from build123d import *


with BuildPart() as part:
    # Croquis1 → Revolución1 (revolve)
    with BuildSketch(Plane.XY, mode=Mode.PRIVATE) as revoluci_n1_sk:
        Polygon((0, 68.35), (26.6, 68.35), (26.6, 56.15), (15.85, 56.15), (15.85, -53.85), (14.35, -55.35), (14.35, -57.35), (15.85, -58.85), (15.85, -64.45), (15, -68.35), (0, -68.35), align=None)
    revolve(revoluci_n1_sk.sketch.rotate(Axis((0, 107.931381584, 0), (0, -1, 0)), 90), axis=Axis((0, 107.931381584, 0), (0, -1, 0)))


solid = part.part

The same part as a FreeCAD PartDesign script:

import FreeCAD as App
import Part
import Sketcher
Q = App.Units.Quantity


def add_polygon(sketch, points):
    """Adds a closed chain of lines whose ends are joined by coincident constraints."""
    first, n = sketch.GeometryCount, len(points)
    for a, b in zip(points, points[1:] + points[:1]):
        sketch.addGeometry(Part.LineSegment(App.Vector(*a, 0), App.Vector(*b, 0)), False)
    for i in range(n):
        sketch.addConstraint(Sketcher.Constraint("Coincident", first + i, 2, first + (i + 1) % n, 1))

doc = App.newDocument("Part")
params = doc.addObject("Spreadsheet::Sheet", "Params")
for row, (alias, value) in enumerate([
    ("sketch1_width", "15 mm"),
    ("sketch1_height", "2 mm"),
    ("sketch1_height2", "110 mm"),
    ("sketch1_width2", "26.6 mm"),
    ("sketch1_height3", "136.7 mm"),
    ("revolution_angle", "360 deg"),
], start=1):
    params.set(f"A{row}", alias)
    params.set(f"B{row}", "=" + value)
    params.setAlias(f"B{row}", alias)

body = doc.addObject("PartDesign::Body", "Body")

sketch1 = body.newObject("Sketcher::SketchObject", "Sketch")
sketch1.AttachmentSupport = (doc.getObject("XY_Plane"), [""])
sketch1.MapMode = "FlatFace"
add_polygon(sketch1, [(26.6, 68.3), (0, 68.3), (0, -68.3), (15, -68.3), (15.8, -64.5), (15.8, -58.9), (14.3, -57.4), (14.3, -55.4), (15.8, -53.9), (15.8, 56.1), (26.6, 56.1)])
sketch1.addConstraint(Sketcher.Constraint("Horizontal", 0))
sketch1.addConstraint(Sketcher.Constraint("Vertical", 1))
sketch1.addConstraint(Sketcher.Constraint("Horizontal", 2))
sketch1.addConstraint(Sketcher.Constraint("Vertical", 4))
sketch1.addConstraint(Sketcher.Constraint("Vertical", 6))
sketch1.addConstraint(Sketcher.Constraint("Vertical", 8))
sketch1.addConstraint(Sketcher.Constraint("Horizontal", 9))
sketch1.addConstraint(Sketcher.Constraint("Vertical", 10))
sketch1.addConstraint(Sketcher.Constraint("Symmetric", 0, 2, 1, 2, -1, 1))
sketch1.addConstraint(Sketcher.Constraint("Perpendicular", 5, 7))
sketch1.addConstraint(Sketcher.Constraint("Vertical", 4, 2, 7, 2))
sketch1.addConstraint(Sketcher.Constraint("Equal", 5, 7))
sketch1.addConstraint(Sketcher.Constraint("DistanceX", 2, 1, 2, 2, Q("15 mm")))
sketch1.addConstraint(Sketcher.Constraint("DistanceY", 6, 1, 6, 2, Q("2 mm")))
sketch1.addConstraint(Sketcher.Constraint("DistanceY", 8, 1, 8, 2, Q("110 mm")))
sketch1.addConstraint(Sketcher.Constraint("DistanceX", 0, 2, 0, 1, Q("26.6 mm")))
sketch1.addConstraint(Sketcher.Constraint("DistanceY", 1, 2, 1, 1, Q("136.7 mm")))
sketch1.addConstraint(Sketcher.Constraint("DistanceY", 4, 1, 4, 2, Q("5.6 mm")))
sketch1.addConstraint(Sketcher.Constraint("DistanceY", 10, 1, 10, 2, Q("12.2 mm")))
sketch1.addConstraint(Sketcher.Constraint("DistanceY", 2, 2, 5, 2, Q("11 mm")))
sketch1.addConstraint(Sketcher.Constraint("DistanceX", 9, 1, 9, 2, Q("10.75 mm")))
sketch1.setExpression("Constraints[23]", "Params.sketch1_width")
sketch1.setExpression("Constraints[24]", "Params.sketch1_height")
sketch1.setExpression("Constraints[25]", "Params.sketch1_height2")
sketch1.setExpression("Constraints[26]", "Params.sketch1_width2")
sketch1.setExpression("Constraints[27]", "Params.sketch1_height3")
revolution = body.newObject("PartDesign::Revolution", "Revolution")
revolution.Profile = sketch1
revolution.ReferenceAxis = (sketch1, ["V_Axis"])
revolution.setExpression("Angle", "Params.revolution_angle")

doc.recompute()
